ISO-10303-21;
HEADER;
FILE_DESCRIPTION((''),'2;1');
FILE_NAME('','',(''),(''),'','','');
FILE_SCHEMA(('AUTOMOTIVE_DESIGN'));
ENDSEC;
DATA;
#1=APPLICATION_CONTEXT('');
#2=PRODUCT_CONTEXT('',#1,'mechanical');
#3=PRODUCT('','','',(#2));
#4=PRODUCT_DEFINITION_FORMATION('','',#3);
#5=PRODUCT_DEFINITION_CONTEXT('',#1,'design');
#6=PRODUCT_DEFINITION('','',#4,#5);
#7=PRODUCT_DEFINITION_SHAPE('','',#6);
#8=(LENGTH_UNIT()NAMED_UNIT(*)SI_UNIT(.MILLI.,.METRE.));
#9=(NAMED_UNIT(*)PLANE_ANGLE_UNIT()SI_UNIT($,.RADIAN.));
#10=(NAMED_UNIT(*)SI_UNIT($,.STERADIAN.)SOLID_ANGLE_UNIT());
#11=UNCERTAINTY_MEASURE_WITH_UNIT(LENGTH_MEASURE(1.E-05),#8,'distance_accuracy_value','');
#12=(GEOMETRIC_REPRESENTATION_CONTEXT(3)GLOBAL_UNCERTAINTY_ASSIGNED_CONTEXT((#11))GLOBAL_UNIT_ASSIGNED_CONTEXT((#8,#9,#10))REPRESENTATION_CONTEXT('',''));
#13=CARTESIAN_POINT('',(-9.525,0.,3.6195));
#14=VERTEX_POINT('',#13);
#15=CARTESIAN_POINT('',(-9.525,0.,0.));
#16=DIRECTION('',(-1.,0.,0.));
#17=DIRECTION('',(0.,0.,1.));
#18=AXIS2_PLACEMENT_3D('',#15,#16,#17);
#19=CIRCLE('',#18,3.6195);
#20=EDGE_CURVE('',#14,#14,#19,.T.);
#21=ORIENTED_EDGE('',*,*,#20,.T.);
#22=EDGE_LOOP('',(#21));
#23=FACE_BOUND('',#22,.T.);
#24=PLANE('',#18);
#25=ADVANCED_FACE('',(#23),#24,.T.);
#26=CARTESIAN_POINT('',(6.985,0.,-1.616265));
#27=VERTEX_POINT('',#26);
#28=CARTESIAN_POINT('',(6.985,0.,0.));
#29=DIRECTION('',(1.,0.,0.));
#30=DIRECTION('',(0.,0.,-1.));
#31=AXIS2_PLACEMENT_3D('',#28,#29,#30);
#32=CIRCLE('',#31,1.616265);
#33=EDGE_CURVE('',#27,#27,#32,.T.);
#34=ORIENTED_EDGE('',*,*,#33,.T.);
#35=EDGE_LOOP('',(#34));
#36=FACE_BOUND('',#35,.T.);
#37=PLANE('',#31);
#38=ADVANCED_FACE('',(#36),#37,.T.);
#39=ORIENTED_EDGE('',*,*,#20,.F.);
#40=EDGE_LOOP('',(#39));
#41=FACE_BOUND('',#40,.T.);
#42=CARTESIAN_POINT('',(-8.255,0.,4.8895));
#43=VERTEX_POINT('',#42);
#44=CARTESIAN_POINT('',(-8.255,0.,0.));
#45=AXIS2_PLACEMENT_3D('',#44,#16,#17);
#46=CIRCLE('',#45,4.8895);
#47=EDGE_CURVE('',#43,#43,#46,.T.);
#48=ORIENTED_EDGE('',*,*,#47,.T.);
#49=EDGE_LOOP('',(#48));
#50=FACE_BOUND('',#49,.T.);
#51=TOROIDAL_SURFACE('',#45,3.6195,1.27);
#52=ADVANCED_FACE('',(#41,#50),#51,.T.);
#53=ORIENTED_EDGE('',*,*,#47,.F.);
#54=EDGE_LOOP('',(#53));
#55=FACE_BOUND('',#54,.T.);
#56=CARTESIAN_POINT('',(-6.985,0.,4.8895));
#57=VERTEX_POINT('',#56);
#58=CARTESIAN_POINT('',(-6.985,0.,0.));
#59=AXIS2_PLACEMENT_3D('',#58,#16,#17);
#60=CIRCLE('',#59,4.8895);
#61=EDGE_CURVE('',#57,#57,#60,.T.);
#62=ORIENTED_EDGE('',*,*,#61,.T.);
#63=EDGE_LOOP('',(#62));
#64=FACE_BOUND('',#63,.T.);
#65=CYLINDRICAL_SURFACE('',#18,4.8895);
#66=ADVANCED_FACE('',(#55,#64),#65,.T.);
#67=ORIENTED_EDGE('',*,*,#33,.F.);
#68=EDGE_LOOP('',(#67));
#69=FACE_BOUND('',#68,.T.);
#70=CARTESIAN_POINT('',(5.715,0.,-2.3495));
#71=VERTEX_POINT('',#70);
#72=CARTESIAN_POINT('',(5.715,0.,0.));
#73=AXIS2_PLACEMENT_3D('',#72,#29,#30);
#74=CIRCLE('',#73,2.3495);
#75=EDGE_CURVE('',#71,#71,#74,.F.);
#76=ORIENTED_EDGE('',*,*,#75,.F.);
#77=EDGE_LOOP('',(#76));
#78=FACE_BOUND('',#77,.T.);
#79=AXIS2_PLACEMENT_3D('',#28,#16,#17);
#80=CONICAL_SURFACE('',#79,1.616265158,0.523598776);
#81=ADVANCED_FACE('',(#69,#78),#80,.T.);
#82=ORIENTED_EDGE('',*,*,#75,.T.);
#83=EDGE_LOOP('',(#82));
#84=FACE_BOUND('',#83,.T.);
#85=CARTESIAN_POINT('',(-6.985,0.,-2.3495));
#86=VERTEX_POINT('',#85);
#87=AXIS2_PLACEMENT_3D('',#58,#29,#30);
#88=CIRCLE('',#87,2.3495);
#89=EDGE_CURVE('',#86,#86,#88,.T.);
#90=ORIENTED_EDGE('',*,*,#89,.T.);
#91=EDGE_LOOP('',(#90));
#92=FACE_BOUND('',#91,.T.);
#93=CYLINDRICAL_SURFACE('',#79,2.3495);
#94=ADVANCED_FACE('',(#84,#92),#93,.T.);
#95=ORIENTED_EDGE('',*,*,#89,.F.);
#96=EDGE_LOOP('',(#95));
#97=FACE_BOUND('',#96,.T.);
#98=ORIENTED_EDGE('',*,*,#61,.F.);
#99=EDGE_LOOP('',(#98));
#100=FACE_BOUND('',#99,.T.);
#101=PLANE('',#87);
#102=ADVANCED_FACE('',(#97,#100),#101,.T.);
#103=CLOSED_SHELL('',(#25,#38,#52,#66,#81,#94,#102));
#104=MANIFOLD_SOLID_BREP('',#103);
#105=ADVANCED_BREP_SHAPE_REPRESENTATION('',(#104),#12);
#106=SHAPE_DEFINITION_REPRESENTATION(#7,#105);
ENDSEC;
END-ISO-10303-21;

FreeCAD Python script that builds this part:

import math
import FreeCAD as App
import Part
import Sketcher
Q = App.Units.Quantity


def edges_at(feature, points):
    """Names of the edges that pass closest to the given points."""
    edges = feature.Shape.Edges
    near = lambda p: min(range(len(edges)), key=lambda i: edges[i].distToShape(Part.Vertex(*p))[0])
    return sorted({f"Edge{near(p) + 1}" for p in points})

doc = App.newDocument("Part")
body = doc.addObject("PartDesign::Body", "Body")

# Sketch on YZ plane
sketch1 = body.newObject("Sketcher::SketchObject", "Sketch")
sketch1.AttachmentSupport = (doc.getObject("YZ_Plane"), [""])
sketch1.MapMode = "FlatFace"
sketch1.addGeometry(Part.Circle(App.Vector(0, 0, 0), App.Vector(0, 0, 1), 2.3), False)
sketch1.addConstraint(Sketcher.Constraint("Coincident", 0, 3, -1, 1))
sketch1.addConstraint(Sketcher.Constraint("Diameter", 0, Q("0.185 in")))
pad1 = body.newObject("PartDesign::Pad", "Pad")
pad1.Profile = sketch1
pad1.Length = Q("0.55 in")
pad1.Midplane = True

# Sketch on XZ plane
sketch2 = body.newObject("Sketcher::SketchObject", "Sketch001")
sketch2.AttachmentSupport = (doc.getObject("XZ_Plane"), [""])
sketch2.MapMode = "FlatFace"
sketch2.addGeometry(Part.LineSegment(App.Vector(-7, 0, 0), App.Vector(-9.5, 0, 0)), False)
sketch2.addGeometry(Part.LineSegment(App.Vector(-9.5, 0, 0), App.Vector(-9.5, 3.6, 0)), False)
sketch2.addGeometry(Part.ArcOfCircle(Part.Circle(App.Vector(-8.3, 3.6, 0), App.Vector(0, 0, 1), 1.3), math.radians(90), math.radians(180)), False)
sketch2.addGeometry(Part.LineSegment(App.Vector(-8.3, 4.9, 0), App.Vector(-7, 4.9, 0)), False)
sketch2.addGeometry(Part.LineSegment(App.Vector(-7, 4.9, 0), App.Vector(-7, 0, 0)), False)
sketch2.addConstraint(Sketcher.Constraint("Coincident", 0, 2, 1, 1))
sketch2.addConstraint(Sketcher.Constraint("Tangent", 1, 2, 2, 2))
sketch2.addConstraint(Sketcher.Constraint("Tangent", 2, 1, 3, 1))
sketch2.addConstraint(Sketcher.Constraint("Coincident", 3, 2, 4, 1))
sketch2.addConstraint(Sketcher.Constraint("Coincident", 4, 2, 0, 1))
sketch2.addConstraint(Sketcher.Constraint("Horizontal", 0))
sketch2.addConstraint(Sketcher.Constraint("Vertical", 1))
sketch2.addConstraint(Sketcher.Constraint("Horizontal", 3))
sketch2.addConstraint(Sketcher.Constraint("Vertical", 4))
sketch2.addConstraint(Sketcher.Constraint("PointOnObject", 0, 2, -1))
sketch2.addConstraint(Sketcher.Constraint("Radius", 2, Q("0.05 in")))
sketch2.addConstraint(Sketcher.Constraint("DistanceX", 0, 2, 0, 1, Q("0.1 in")))
sketch2.addConstraint(Sketcher.Constraint("DistanceY", 1, 1, 1, 2, Q("0.1425 in")))
sketch2.addConstraint(Sketcher.Constraint("DistanceX", 2, 3, -1, 1, Q("0.325 in")))
revolution = body.newObject("PartDesign::Revolution", "Revolution")
revolution.Profile = sketch2
revolution.ReferenceAxis = (sketch2, ["H_Axis"])
revolution.Angle = 360
doc.recompute()

chamfer = body.newObject("PartDesign::Chamfer", "Chamfer")
chamfer.Base = (revolution, edges_at(revolution, [(6.985, 0, 2.349)]))
chamfer.ChamferType = "Two distances"
chamfer.Size = Q("0.05 in")
chamfer.Size2 = 0.733235

doc.recompute()
